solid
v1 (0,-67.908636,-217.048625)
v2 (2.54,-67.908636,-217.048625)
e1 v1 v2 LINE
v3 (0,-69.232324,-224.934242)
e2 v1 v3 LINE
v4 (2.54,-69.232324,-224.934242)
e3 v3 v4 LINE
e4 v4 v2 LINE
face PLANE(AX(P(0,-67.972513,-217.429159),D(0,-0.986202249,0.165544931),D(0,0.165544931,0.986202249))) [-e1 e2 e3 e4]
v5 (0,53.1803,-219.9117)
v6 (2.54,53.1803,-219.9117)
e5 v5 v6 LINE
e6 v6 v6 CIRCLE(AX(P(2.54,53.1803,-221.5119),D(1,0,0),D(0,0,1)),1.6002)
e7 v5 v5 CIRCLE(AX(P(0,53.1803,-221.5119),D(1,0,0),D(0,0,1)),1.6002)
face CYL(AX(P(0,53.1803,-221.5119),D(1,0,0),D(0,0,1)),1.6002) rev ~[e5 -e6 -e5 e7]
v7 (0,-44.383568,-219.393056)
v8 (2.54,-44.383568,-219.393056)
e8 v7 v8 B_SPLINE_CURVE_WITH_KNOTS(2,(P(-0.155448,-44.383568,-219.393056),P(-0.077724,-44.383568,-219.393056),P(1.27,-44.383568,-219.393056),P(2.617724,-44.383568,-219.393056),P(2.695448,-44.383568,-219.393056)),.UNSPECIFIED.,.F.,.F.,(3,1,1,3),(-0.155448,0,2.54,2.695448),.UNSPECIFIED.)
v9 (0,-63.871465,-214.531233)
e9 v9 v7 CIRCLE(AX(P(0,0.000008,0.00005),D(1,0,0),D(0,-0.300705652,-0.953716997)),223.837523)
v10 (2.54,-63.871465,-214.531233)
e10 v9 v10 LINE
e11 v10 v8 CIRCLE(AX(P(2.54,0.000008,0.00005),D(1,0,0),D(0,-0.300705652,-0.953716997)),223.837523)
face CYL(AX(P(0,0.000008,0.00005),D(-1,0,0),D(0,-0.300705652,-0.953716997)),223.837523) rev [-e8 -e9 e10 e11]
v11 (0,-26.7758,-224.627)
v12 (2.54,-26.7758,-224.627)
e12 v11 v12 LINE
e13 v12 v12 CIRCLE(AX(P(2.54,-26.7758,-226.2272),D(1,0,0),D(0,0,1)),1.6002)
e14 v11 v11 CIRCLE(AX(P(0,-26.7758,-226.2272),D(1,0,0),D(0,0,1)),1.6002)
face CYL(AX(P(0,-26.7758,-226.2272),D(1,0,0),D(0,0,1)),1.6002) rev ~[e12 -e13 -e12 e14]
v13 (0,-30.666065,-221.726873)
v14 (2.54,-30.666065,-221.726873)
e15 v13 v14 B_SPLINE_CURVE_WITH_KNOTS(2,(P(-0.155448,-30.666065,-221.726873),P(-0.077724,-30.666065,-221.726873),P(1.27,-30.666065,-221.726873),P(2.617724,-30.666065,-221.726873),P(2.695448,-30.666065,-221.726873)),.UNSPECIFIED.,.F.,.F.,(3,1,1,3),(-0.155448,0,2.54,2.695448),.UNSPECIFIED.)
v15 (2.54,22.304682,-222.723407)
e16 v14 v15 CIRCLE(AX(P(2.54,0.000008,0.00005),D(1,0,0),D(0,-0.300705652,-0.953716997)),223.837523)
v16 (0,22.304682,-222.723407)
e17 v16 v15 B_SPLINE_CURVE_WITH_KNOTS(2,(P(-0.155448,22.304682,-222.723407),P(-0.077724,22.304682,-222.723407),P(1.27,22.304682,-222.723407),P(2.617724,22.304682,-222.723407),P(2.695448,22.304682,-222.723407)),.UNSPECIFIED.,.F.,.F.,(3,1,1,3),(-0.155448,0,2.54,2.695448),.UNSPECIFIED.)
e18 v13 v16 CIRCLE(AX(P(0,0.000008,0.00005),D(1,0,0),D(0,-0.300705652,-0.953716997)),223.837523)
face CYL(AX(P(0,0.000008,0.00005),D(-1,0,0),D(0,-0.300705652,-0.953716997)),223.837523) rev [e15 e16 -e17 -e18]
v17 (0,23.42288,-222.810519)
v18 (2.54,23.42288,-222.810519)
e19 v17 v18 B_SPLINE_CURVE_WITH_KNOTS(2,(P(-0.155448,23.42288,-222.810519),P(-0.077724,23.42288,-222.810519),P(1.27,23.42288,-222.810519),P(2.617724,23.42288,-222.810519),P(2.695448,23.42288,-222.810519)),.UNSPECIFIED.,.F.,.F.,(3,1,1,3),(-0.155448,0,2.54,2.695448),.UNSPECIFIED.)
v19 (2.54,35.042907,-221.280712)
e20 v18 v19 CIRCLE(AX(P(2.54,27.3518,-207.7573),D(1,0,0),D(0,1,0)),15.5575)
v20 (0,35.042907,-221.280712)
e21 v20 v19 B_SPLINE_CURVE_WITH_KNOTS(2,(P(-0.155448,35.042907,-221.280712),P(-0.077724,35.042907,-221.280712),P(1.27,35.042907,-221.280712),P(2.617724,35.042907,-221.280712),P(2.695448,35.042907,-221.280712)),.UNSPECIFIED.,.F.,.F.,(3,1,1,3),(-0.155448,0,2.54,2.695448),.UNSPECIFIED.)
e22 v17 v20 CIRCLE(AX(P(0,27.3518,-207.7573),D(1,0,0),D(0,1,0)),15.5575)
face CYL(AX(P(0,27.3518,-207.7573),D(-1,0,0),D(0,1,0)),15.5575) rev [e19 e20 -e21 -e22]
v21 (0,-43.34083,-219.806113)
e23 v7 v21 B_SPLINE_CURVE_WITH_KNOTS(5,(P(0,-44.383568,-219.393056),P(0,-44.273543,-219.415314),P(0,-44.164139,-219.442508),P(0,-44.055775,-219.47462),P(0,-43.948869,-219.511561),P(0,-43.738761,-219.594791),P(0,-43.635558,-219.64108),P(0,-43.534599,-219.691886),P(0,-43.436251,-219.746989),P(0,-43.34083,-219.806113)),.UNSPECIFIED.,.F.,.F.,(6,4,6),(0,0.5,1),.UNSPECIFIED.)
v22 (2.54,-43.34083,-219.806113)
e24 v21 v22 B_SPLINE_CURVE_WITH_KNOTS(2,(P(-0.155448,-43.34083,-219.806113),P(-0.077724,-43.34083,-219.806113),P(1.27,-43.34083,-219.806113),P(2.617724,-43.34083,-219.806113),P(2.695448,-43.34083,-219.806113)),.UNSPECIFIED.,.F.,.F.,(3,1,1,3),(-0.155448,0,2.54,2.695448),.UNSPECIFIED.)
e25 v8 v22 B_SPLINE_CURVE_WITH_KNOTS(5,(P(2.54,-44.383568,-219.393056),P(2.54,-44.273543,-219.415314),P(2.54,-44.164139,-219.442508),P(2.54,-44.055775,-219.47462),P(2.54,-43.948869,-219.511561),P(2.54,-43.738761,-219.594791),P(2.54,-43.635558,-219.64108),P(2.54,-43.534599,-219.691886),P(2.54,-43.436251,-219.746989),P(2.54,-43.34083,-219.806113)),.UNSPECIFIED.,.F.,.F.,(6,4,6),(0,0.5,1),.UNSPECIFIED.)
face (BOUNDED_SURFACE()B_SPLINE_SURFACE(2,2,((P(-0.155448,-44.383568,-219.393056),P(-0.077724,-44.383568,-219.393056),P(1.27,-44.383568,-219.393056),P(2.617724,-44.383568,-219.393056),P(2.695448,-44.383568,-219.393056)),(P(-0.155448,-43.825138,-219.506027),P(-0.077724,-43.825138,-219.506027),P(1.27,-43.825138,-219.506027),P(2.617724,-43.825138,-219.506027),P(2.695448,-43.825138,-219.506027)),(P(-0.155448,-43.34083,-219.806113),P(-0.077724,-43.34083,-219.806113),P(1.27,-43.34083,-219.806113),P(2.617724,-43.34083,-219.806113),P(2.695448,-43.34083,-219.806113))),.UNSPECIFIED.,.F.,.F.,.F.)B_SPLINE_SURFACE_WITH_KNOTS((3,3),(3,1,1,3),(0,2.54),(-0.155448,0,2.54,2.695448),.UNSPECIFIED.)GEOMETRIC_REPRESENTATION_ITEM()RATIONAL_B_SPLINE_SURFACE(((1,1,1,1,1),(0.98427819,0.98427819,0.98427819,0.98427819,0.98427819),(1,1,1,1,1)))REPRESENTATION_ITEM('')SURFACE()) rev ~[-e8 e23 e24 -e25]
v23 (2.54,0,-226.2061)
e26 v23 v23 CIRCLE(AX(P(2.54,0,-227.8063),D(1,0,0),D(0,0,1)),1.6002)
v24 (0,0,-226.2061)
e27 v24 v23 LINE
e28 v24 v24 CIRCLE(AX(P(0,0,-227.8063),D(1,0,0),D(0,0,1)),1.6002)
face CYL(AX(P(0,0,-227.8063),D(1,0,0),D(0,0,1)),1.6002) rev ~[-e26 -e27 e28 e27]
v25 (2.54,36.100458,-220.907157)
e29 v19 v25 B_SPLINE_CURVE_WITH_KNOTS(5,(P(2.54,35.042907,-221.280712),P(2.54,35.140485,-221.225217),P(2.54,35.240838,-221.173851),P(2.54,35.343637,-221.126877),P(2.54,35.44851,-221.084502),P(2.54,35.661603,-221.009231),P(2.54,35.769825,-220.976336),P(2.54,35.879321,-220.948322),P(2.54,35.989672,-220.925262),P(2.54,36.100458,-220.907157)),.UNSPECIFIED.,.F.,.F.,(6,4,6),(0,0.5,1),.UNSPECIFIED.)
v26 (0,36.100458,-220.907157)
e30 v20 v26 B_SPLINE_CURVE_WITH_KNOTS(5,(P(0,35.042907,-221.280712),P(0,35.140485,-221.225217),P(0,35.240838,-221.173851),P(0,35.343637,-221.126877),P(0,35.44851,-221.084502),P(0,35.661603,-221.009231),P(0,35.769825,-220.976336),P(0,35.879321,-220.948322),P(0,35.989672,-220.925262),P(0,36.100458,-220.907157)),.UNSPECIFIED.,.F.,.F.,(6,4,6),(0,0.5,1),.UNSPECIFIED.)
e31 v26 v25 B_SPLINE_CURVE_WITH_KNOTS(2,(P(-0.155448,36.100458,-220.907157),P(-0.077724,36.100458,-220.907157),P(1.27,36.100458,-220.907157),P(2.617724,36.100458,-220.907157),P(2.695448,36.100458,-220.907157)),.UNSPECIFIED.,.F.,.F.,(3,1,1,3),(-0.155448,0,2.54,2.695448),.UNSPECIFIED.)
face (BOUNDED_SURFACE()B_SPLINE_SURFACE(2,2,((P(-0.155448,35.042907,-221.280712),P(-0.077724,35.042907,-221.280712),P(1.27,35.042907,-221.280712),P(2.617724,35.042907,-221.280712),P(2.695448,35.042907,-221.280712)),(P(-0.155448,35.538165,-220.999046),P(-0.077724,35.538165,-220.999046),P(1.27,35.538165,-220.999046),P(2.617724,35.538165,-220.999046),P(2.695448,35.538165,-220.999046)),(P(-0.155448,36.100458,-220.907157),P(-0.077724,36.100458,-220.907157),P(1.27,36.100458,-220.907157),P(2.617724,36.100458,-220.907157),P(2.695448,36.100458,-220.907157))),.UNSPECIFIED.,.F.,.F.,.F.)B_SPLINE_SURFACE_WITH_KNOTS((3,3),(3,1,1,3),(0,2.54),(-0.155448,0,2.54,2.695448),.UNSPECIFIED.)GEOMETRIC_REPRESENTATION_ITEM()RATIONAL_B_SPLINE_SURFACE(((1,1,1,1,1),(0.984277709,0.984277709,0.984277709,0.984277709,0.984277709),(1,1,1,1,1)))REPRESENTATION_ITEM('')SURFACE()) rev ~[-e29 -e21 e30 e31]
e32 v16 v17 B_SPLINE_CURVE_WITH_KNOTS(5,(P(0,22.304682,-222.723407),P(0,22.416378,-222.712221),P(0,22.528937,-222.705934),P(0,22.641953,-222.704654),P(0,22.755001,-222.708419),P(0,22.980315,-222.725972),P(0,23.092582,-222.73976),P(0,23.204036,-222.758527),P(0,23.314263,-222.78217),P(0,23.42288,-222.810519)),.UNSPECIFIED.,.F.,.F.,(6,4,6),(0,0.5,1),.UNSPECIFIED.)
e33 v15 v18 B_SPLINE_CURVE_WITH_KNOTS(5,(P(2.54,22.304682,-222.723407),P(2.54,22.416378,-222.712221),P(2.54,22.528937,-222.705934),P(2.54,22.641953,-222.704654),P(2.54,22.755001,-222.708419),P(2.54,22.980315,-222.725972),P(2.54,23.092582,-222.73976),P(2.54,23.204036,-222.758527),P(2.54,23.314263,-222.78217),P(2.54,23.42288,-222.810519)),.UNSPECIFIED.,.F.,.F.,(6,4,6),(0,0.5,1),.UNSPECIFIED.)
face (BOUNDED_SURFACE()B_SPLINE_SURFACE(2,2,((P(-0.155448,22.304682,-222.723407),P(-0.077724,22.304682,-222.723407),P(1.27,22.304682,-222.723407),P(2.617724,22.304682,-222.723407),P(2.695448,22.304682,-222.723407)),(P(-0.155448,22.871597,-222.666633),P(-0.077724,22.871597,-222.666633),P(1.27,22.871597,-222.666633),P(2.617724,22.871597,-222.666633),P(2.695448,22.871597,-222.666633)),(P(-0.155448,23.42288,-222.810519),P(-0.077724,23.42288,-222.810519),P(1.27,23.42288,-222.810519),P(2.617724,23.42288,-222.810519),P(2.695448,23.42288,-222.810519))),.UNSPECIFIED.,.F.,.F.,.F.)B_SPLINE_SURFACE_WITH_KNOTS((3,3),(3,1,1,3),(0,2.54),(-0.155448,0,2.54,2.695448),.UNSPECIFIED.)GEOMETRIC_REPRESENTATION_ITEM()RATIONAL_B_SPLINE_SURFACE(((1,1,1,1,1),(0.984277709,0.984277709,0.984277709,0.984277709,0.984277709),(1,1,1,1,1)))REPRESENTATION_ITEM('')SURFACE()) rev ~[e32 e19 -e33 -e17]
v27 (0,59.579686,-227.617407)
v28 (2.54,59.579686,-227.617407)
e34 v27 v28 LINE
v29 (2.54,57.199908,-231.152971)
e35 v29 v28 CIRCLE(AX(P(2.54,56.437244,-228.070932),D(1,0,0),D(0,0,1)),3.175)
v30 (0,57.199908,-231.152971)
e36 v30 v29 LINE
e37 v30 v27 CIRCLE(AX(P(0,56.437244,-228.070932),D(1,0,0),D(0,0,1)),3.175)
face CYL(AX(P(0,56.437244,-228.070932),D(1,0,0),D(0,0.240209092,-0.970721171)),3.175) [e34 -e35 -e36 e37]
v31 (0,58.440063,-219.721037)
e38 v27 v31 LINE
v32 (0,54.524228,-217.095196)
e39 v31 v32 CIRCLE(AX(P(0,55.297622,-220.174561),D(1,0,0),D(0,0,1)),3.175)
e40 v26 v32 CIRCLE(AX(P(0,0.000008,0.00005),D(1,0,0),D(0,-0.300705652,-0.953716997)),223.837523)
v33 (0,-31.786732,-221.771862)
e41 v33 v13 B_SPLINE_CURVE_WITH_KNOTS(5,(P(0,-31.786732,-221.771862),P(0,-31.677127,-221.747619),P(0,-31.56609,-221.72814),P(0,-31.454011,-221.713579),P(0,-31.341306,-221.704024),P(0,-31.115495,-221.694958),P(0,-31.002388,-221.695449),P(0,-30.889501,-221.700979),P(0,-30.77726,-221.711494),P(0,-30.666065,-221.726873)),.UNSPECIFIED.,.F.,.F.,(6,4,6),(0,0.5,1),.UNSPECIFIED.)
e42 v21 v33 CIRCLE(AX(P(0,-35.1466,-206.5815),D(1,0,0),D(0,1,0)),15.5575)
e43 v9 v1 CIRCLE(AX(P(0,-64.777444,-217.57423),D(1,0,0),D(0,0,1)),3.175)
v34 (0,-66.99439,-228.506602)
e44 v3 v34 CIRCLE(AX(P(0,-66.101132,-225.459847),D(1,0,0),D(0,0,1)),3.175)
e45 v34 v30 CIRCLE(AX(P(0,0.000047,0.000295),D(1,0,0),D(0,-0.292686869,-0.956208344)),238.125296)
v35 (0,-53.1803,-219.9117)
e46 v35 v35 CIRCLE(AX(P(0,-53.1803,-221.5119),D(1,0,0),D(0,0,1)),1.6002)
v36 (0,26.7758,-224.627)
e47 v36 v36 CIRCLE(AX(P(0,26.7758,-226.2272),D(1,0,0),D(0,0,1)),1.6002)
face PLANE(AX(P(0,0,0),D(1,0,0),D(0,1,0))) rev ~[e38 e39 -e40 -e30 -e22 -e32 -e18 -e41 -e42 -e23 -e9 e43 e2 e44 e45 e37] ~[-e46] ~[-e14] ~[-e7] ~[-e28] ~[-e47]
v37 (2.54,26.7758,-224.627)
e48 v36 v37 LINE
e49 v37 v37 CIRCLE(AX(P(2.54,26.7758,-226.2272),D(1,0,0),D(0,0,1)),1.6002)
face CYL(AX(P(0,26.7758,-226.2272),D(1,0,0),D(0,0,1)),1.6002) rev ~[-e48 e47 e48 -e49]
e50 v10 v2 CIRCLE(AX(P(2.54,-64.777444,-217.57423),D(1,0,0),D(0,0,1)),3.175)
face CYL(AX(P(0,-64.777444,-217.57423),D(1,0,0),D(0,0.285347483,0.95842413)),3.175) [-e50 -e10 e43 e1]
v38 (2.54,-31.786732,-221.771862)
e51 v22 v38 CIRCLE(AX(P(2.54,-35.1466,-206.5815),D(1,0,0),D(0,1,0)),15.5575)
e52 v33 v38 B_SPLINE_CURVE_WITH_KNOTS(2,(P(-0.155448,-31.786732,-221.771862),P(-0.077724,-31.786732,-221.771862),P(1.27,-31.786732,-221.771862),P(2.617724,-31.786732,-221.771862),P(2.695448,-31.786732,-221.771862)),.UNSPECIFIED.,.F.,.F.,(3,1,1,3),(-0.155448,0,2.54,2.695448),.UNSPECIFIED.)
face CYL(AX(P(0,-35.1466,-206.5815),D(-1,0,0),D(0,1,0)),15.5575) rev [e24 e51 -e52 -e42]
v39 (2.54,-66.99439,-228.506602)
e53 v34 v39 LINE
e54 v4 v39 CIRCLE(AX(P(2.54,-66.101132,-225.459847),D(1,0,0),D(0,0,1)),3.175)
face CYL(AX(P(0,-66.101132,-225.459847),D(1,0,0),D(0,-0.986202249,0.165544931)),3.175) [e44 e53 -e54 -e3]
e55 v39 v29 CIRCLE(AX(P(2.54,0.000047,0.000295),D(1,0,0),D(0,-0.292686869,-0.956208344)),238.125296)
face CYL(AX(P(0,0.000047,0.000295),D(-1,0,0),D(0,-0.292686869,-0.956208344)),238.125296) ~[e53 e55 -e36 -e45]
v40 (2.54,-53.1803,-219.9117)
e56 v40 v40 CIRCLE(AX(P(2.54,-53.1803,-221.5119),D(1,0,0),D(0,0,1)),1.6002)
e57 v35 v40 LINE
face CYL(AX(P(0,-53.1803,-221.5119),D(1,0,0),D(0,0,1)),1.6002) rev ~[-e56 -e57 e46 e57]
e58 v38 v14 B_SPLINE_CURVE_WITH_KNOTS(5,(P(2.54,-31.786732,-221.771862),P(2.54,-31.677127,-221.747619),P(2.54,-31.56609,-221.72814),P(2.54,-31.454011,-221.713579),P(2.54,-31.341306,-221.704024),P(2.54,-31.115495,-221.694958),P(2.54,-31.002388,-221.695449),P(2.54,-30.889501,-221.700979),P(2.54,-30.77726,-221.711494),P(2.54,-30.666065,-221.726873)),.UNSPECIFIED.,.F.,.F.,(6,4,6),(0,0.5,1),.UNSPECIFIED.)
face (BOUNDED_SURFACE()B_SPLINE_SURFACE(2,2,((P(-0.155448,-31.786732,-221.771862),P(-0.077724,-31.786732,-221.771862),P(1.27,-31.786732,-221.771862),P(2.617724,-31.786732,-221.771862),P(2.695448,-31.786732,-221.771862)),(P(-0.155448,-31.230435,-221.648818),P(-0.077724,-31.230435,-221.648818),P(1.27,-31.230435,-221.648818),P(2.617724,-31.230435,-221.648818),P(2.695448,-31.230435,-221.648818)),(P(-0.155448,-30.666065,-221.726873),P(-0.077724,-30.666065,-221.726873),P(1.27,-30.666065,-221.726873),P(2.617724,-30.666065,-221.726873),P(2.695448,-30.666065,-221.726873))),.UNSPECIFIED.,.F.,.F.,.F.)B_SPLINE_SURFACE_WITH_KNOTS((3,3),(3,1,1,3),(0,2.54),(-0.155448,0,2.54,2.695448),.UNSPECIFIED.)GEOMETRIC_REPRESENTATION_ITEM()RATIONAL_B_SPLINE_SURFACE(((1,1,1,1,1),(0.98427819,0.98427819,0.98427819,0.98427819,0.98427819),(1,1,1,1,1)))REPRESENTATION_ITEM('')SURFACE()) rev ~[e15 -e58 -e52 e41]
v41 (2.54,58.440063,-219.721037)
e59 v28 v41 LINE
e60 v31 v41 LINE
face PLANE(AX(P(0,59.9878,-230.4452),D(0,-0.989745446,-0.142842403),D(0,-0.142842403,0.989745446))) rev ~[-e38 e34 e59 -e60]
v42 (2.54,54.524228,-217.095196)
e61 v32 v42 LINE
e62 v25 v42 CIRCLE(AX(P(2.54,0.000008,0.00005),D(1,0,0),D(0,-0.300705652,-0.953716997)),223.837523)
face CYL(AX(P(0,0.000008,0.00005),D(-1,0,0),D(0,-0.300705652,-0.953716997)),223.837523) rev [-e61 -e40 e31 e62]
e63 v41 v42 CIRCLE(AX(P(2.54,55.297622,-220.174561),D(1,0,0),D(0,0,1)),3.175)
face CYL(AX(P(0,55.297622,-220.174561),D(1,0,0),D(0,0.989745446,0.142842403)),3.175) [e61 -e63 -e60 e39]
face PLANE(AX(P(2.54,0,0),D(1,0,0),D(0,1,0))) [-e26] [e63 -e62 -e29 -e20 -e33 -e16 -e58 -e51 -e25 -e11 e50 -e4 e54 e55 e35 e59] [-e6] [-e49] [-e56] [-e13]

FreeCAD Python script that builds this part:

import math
import FreeCAD as App
import Part
import Sketcher
Q = App.Units.Quantity


def edges_at(feature, points):
    """Names of the edges that pass closest to the given points."""
    edges = feature.Shape.Edges
    near = lambda p: min(range(len(edges)), key=lambda i: edges[i].distToShape(Part.Vertex(*p))[0])
    return sorted({f"Edge{near(p) + 1}" for p in points})

doc = App.newDocument("Part")
params = doc.addObject("Spreadsheet::Sheet", "Params")
for row, (alias, value) in enumerate([
    ("sketch1_radius", "8.8125 in"),
    ("sketch1_radius2", "9.375 in"),
    ("sketch1_height", "0.509 in"),
    ("pad1_length", "0.1 in"),
    ("sketch2_diameter", "0.126 in"),
    ("hole_diameter", "0.126 in"),
    ("fillet_radius", "0.125 in"),
], start=1):
    params.set(f"A{row}", alias)
    params.set(f"B{row}", "=" + value)
    params.setAlias(f"B{row}", alias)

body = doc.addObject("PartDesign::Body", "Body")

# Sketch on YZ plane
sketch1 = body.newObject("Sketcher::SketchObject", "Sketch")
sketch1.AttachmentSupport = (doc.getObject("YZ_Plane"), [""])
sketch1.MapMode = "FlatFace"
sketch1.addGeometry([
    Part.ArcOfCircle(Part.Circle(App.Vector(0, 0, 0), App.Vector(0, 0, 1), 224), math.radians(-107.5), math.radians(-101.28)),  # 0
    Part.LineSegment(App.Vector(-67, -213, 0), App.Vector(-70, -228, 0)),  # 1
    Part.ArcOfCircle(Part.Circle(App.Vector(0, 0, 0), App.Vector(0, 0, 1), 238), math.radians(-107), math.radians(-75)),  # 2
    Part.LineSegment(App.Vector(60, -230, 0), App.Vector(58, -216, 0)),  # 3
    Part.ArcOfCircle(Part.Circle(App.Vector(0, 0, 0), App.Vector(0, 0, 1), 224), math.radians(-80.87), math.radians(-75)),  # 4
    Part.ArcOfCircle(Part.Circle(App.Vector(27, -208, 0), App.Vector(0, 0, 1), 16), math.radians(-107), math.radians(-58)),  # 5
    Part.ArcOfCircle(Part.Circle(App.Vector(0, 0, 0), App.Vector(0, 0, 1), 224), math.radians(-98.03), math.radians(-84.13)),  # 6
    Part.ArcOfCircle(Part.Circle(App.Vector(-35, -207, 0), App.Vector(0, 0, 1), 16), math.radians(-124), math.radians(-76)),  # 7
], False)
sketch1.addConstraint([
    Sketcher.Constraint("Coincident", 0, 1, 1, 1),
    Sketcher.Constraint("Coincident", 1, 2, 2, 1),
    Sketcher.Constraint("Coincident", 2, 2, 3, 1),
    Sketcher.Constraint("Coincident", 3, 2, 4, 2),
    Sketcher.Constraint("Coincident", 4, 1, 5, 2),
    Sketcher.Constraint("Coincident", 5, 1, 6, 2),
    Sketcher.Constraint("Coincident", 6, 1, 7, 2),
    Sketcher.Constraint("Coincident", 7, 1, 0, 2),
    Sketcher.Constraint("Coincident", 0, 3, -1, 1),
    Sketcher.Constraint("Coincident", 2, 3, -1, 1),
    Sketcher.Constraint("Coincident", 4, 3, -1, 1),
    Sketcher.Constraint("Coincident", 6, 3, -1, 1),
    Sketcher.Constraint("Equal", 0, 4),
    Sketcher.Constraint("Equal", 4, 6),
    Sketcher.Constraint("Equal", 5, 7),
    Sketcher.Constraint("Radius", 0, Q("8.8125 in")),
    Sketcher.Constraint("Radius", 2, Q("9.375 in")),
    Sketcher.Constraint("Radius", 5, Q("0.6125 in")),
    Sketcher.Constraint("Angle", 1, Q("-99.529 deg")),
    Sketcher.Constraint("DistanceX", 5, 3, 3, 2, Q("1.204 in")),
    Sketcher.Constraint("DistanceY", 7, 1, 7, 3, Q("0.509 in")),
    Sketcher.Constraint("DistanceX", 7, 1, -1, 1, Q("1.7244 in")),
    Sketcher.Constraint("DistanceY", 5, 3, 7, 3, Q("0.0463 in")),
    Sketcher.Constraint("DistanceY", 0, 1, 7, 3, Q("0.2715 in")),
    Sketcher.Constraint("DistanceX", 0, 1, 5, 3, Q("3.7268 in")),
    Sketcher.Constraint("DistanceX", 0, 1, 2, 2, Q("5.0117 in")),
])
sketch1.setExpression("Constraints[15]", "Params.sketch1_radius")
sketch1.setExpression("Constraints[16]", "Params.sketch1_radius2")
sketch1.setExpression("Constraints[20]", "Params.sketch1_height")
pad1 = body.newObject("PartDesign::Pad", "Pad")
pad1.Profile = sketch1
pad1.setExpression("Length", "Params.pad1_length")

# Sketch on YZ plane
sketch2 = body.newObject("Sketcher::SketchObject", "Sketch001")
sketch2.AttachmentSupport = (doc.getObject("YZ_Plane"), [""])
sketch2.MapMode = "FlatFace"
sketch2.addGeometry([
    Part.Circle(App.Vector(-53.2, -221.5, 0), App.Vector(0, 0, 1), 1.6),  # 0
    Part.Circle(App.Vector(-26.8, -226.2, 0), App.Vector(0, 0, 1), 1.6),  # 1
    Part.Circle(App.Vector(0, -227.8, 0), App.Vector(0, 0, 1), 1.6),  # 2
    Part.Circle(App.Vector(26.8, -226.2, 0), App.Vector(0, 0, 1), 1.6),  # 3
    Part.Circle(App.Vector(53.2, -221.5, 0), App.Vector(0, 0, 1), 1.6),  # 4
], False)
sketch2.addConstraint([
    Sketcher.Constraint("Equal", 0, 1),
    Sketcher.Constraint("Equal", 1, 2),
    Sketcher.Constraint("Equal", 2, 3),
    Sketcher.Constraint("Equal", 3, 4),
    Sketcher.Constraint("Symmetric", 1, 3, 3, 3, -2),
    Sketcher.Constraint("Symmetric", 0, 3, 4, 3, -2),
    Sketcher.Constraint("PointOnObject", 2, 3, -2),
    Sketcher.Constraint("Diameter", 0, Q("0.126 in")),
    Sketcher.Constraint("DistanceY", 2, 3, -1, 1, Q("8.968752 in")),
    Sketcher.Constraint("DistanceY", 2, 3, 0, 3, Q("0.2478 in")),
    Sketcher.Constraint("DistanceX", 0, 3, -1, 1, 53.1803),
    Sketcher.Constraint("DistanceX", 1, 3, -1, 1, 26.7758),
    Sketcher.Constraint("DistanceY", 1, 3, -1, 1, 226.2272),
])
sketch2.setExpression("Constraints[7]", "Params.sketch2_diameter")
doc.recompute()
hole = body.newObject("PartDesign::Hole", "Hole")
hole.Profile = sketch2
hole.ThreadType = "None"
hole.setExpression("Diameter", "Params.hole_diameter")
hole.DepthType = "ThroughAll"
hole.Reversed = True
doc.recompute()

fillet = body.newObject("PartDesign::Fillet", "Fillet")
fillet.Base = (hole, edges_at(hole, [
    (1.27, 57.933, -216.21),
    (1.27, 59.988, -230.445),
    (1.27, 35.513, -221.002),
    (1.27, 22.897, -222.663),
    (1.27, -31.256, -221.645),
    (1.27, -43.8, -219.51),
    (1.27, -67.309, -213.478),
    (1.27, -69.696, -227.697),
]))
fillet.setExpression("Radius", "Params.fillet_radius")

doc.recompute()
